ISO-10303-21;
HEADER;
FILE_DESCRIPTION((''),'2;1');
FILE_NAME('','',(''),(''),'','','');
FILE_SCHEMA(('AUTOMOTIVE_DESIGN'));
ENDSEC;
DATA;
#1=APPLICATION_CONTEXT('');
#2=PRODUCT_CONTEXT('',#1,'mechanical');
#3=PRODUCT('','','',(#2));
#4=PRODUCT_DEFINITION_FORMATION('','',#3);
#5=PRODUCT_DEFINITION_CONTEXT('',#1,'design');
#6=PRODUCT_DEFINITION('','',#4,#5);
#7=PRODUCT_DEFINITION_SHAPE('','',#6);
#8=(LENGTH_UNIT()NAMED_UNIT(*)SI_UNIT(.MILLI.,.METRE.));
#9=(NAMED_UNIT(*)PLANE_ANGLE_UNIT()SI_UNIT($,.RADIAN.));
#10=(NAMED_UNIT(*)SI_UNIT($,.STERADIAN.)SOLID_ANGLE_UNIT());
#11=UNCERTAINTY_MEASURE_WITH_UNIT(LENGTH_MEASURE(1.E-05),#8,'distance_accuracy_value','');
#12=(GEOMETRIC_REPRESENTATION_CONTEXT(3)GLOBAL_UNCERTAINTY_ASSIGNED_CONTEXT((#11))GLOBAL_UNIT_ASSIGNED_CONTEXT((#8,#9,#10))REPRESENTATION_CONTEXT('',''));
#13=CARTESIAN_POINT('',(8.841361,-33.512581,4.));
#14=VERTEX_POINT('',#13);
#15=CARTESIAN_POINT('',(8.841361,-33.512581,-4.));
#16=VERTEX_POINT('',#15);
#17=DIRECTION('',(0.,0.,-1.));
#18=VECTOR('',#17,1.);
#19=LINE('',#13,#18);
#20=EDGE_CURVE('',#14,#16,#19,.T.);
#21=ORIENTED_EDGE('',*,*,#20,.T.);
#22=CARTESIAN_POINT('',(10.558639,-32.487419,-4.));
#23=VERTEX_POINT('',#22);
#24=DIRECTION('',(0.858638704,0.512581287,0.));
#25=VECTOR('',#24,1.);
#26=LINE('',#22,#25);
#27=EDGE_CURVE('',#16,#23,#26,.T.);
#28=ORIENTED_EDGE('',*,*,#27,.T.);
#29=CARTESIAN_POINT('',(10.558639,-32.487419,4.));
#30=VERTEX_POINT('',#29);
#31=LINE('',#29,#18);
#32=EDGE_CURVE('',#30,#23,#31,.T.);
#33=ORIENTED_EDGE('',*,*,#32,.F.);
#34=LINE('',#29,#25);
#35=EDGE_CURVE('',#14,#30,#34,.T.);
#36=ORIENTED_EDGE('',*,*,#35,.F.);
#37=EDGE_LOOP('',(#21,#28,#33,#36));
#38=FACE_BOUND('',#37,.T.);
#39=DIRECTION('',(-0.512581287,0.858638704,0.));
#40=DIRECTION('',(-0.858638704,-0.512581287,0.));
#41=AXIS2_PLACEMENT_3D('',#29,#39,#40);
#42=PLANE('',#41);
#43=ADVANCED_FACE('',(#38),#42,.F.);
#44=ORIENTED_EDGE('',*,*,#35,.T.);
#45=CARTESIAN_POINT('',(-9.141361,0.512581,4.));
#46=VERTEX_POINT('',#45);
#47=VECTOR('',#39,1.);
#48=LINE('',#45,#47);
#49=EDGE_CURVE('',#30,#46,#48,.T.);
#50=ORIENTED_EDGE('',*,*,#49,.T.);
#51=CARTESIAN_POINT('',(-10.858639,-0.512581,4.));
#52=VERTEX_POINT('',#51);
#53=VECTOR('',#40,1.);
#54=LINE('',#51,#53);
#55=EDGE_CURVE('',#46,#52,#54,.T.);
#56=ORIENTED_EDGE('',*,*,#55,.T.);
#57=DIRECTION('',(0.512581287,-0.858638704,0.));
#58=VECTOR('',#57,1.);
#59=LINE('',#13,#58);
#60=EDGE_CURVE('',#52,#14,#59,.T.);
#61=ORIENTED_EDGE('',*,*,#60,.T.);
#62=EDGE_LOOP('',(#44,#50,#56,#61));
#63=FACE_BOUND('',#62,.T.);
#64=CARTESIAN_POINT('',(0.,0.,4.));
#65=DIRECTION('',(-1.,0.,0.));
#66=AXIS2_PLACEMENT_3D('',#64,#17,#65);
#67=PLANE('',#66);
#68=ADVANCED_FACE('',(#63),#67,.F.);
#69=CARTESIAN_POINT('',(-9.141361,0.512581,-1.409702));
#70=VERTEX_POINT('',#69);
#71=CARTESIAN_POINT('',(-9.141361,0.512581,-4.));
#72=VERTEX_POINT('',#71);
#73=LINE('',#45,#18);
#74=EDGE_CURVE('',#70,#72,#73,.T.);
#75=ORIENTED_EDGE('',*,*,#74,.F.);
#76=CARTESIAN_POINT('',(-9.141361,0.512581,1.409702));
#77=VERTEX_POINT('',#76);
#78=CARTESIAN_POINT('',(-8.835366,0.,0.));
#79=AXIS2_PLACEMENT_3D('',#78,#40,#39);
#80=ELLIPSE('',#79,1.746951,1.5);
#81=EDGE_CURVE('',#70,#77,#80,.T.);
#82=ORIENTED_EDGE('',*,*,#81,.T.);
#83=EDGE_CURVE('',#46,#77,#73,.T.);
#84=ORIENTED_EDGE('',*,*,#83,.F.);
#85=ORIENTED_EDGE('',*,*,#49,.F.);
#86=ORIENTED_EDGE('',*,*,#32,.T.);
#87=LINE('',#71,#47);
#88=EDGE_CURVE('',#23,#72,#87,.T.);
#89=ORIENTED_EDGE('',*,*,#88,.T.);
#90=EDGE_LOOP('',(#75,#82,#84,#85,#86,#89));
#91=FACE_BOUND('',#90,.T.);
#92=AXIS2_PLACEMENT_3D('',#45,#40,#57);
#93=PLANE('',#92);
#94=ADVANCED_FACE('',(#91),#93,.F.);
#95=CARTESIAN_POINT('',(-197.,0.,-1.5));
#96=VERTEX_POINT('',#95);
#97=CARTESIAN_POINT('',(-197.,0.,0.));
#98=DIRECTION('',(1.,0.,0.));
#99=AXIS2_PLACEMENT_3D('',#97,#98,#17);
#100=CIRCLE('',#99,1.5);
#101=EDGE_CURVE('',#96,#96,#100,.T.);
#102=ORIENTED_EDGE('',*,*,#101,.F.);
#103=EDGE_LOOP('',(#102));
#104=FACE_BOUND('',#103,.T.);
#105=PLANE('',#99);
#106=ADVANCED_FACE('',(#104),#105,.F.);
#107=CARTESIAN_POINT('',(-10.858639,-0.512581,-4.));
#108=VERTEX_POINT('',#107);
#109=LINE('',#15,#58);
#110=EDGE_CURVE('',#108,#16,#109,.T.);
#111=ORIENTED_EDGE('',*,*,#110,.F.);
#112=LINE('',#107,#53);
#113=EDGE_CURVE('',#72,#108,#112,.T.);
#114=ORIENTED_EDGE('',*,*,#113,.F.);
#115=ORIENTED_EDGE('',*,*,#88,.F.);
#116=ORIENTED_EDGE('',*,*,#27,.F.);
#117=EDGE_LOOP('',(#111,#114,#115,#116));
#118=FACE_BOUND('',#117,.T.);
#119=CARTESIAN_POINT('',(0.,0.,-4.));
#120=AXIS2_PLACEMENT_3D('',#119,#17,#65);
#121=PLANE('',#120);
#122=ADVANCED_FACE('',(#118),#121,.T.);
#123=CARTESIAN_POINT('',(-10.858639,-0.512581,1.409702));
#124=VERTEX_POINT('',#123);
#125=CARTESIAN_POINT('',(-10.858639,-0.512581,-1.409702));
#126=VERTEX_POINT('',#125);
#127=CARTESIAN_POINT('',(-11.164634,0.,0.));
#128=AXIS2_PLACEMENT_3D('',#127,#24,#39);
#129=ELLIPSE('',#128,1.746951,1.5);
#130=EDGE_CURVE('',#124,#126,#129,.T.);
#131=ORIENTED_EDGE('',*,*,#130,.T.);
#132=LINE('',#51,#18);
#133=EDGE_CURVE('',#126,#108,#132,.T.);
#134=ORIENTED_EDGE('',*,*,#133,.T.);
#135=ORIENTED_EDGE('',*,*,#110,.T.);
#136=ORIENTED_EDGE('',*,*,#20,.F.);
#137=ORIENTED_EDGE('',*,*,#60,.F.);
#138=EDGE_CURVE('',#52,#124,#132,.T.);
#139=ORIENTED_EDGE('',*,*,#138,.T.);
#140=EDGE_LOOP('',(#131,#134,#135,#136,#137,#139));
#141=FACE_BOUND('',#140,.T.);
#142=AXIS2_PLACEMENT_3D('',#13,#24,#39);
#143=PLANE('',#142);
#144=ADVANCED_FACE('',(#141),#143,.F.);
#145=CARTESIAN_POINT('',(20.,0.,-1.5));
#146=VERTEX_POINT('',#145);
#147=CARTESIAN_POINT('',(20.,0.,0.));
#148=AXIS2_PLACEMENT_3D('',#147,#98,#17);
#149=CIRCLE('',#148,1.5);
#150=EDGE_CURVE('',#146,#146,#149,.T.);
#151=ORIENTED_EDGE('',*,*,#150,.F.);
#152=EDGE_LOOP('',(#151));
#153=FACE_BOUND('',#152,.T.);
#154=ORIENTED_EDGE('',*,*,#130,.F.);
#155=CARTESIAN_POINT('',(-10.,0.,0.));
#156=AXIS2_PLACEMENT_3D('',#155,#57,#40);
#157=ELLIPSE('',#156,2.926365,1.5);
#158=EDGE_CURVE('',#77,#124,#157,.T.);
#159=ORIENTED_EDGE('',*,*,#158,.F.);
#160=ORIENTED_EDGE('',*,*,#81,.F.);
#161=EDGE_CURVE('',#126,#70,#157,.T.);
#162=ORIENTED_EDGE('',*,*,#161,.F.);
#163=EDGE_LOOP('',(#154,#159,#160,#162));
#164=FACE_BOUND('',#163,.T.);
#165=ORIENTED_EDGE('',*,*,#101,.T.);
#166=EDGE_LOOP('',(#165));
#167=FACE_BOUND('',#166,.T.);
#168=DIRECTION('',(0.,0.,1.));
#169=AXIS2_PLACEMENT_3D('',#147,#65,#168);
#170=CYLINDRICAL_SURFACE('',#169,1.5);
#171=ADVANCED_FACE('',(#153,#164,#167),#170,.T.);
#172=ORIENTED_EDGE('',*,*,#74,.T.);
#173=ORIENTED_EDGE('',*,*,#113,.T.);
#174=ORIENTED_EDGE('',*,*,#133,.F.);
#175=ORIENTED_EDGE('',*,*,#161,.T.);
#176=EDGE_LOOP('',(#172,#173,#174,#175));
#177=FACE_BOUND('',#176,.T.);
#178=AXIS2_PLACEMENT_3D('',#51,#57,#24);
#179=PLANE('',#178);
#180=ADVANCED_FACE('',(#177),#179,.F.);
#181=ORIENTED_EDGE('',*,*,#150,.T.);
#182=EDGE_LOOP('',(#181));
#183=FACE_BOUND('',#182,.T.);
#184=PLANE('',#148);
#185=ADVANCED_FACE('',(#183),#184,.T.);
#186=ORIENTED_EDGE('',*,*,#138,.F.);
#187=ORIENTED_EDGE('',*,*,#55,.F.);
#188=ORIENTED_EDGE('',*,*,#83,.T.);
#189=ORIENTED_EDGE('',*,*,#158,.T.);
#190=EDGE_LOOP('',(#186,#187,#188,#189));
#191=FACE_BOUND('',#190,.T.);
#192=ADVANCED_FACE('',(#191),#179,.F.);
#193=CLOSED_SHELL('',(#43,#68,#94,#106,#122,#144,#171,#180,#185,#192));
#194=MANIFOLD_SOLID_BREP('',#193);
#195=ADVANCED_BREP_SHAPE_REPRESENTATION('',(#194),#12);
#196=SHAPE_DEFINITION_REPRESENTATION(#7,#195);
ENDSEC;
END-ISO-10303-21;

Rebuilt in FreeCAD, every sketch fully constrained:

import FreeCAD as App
import Part
import Sketcher

V = App.Vector
Q = App.Units.Quantity

doc = App.newDocument("Part")
body = doc.addObject("PartDesign::Body", "Body")

sketch1 = body.newObject("Sketcher::SketchObject", "Sketch")
sketch1.AttachmentSupport = (doc.getObject("YZ_Plane"), [""])
sketch1.MapMode = "FlatFace"
sketch1.AttachmentOffset = App.Placement(V(0, 0, -197), App.Rotation())
sketch1.addGeometry(Part.Circle(V(0, 0, 0), V(0, 0, 1), 1.5), False)
sketch1.addConstraint([
    Sketcher.Constraint("Coincident", 0, 3, -1, 1),
    Sketcher.Constraint("Diameter", 0, Q("3 mm")),
])
pad1 = body.newObject("PartDesign::Pad", "Pad")
pad1.Profile = sketch1
pad1.Length = 217

sketch2 = body.newObject("Sketcher::SketchObject", "Sketch001")
sketch2.AttachmentSupport = (doc.getObject("XY_Plane"), [""])
sketch2.MapMode = "FlatFace"
sketch2.AttachmentOffset = App.Placement(V(0, 0, -4), App.Rotation())
sketch2.addGeometry([
    Part.LineSegment(V(-9.141361, 0.512581, 0), V(-10.858639, -0.512581, 0)),
    Part.LineSegment(V(-10.858639, -0.512581, 0), V(8.841361, -33.512581, 0)),
    Part.LineSegment(V(8.841361, -33.512581, 0), V(10.558639, -32.487419, 0)),
    Part.LineSegment(V(10.558639, -32.487419, 0), V(-9.141361, 0.512581, 0)),
], False)
sketch2.addConstraint([
    Sketcher.Constraint("Coincident", 0, 2, 1, 1),
    Sketcher.Constraint("Coincident", 1, 2, 2, 1),
    Sketcher.Constraint("Coincident", 2, 2, 3, 1),
    Sketcher.Constraint("Coincident", 3, 2, 0, 1),
    Sketcher.Constraint("Perpendicular", 0, 1),
    Sketcher.Constraint("Perpendicular", 1, 2),
    Sketcher.Constraint("Perpendicular", 2, 3),
    Sketcher.Constraint("Distance", 0, Q("2 mm")),
    Sketcher.Constraint("DistanceY", 1, 2, 0, 2, Q("33 mm")),
    Sketcher.Constraint("DistanceX", 0, 2, 1, 2, Q("19.7 mm")),
    Sketcher.Constraint("DistanceX", 0, 2, -1, 1, Q("10.858639 mm")),
    Sketcher.Constraint("DistanceY", 0, 2, -1, 1, Q("0.512581 mm")),
])
pad2 = body.newObject("PartDesign::Pad", "Pad001")
pad2.Profile = sketch2
pad2.Length = 8

doc.recompute()
